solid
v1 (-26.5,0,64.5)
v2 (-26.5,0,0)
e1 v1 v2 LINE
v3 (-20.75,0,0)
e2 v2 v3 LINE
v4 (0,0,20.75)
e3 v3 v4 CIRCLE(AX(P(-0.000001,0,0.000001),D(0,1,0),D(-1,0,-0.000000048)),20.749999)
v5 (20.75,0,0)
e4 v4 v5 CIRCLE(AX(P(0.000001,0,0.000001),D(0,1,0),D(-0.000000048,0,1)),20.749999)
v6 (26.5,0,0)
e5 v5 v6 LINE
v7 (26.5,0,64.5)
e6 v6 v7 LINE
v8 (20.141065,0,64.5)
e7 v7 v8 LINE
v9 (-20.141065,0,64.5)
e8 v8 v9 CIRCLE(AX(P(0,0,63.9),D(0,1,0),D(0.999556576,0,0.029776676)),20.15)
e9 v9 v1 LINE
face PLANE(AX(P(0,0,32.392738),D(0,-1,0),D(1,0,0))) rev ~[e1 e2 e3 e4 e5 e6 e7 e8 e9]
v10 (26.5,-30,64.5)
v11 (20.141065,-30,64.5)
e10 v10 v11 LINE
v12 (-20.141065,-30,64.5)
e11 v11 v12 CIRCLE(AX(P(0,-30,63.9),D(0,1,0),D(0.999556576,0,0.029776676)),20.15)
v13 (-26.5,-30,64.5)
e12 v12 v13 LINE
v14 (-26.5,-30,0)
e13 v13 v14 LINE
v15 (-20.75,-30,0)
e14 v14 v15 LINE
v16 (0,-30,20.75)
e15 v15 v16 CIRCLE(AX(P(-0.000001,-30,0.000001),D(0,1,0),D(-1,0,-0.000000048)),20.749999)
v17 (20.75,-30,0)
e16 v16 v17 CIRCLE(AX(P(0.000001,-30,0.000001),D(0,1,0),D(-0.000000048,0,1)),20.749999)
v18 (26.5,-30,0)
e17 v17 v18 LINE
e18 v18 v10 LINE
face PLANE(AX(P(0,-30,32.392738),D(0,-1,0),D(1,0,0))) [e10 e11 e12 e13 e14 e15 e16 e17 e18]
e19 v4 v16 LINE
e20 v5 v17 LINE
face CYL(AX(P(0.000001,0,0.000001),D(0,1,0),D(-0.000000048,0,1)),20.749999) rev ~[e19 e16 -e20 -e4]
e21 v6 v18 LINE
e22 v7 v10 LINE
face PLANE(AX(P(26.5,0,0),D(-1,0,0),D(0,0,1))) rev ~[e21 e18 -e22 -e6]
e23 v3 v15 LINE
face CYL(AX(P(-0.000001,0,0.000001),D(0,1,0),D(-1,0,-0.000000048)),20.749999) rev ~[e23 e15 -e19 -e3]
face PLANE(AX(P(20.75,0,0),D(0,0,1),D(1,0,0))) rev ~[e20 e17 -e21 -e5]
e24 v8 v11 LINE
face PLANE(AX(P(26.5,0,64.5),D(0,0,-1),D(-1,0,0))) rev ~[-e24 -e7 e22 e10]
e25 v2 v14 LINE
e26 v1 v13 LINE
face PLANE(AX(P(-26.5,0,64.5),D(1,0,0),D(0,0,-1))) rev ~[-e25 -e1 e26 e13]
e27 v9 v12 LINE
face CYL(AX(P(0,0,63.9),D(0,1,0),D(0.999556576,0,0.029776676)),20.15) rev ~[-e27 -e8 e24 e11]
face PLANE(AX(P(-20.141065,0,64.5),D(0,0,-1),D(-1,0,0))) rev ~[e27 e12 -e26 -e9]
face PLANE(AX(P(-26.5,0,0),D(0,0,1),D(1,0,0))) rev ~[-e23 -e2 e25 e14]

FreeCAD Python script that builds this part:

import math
import FreeCAD as App
import Part
import Sketcher
from FreeCAD import Vector
Q = App.Units.Quantity

doc = App.newDocument("Part")
body = doc.addObject("PartDesign::Body", "Body")

# Sketch on XZ plane
sketch1 = body.newObject("Sketcher::SketchObject", "Sketch")
sketch1.AttachmentSupport = (doc.getObject("XZ_Plane"), [""])
sketch1.MapMode = "FlatFace"
sketch1.addGeometry(Part.LineSegment(Vector(26, 64, 0), Vector(20, 64, 0)), False)
sketch1.addGeometry(Part.ArcOfCircle(Part.Circle(Vector(0, 64, 0), Vector(0, 0, 1), 20), math.radians(178), math.radians(362)), False)
sketch1.addGeometry(Part.LineSegment(Vector(-20, 64, 0), Vector(-26, 64, 0)), False)
sketch1.addGeometry(Part.LineSegment(Vector(-26, 64, 0), Vector(-26, 0, 0)), False)
sketch1.addGeometry(Part.LineSegment(Vector(-26, 0, 0), Vector(-21, 0, 0)), False)
sketch1.addGeometry(Part.ArcOfCircle(Part.Circle(Vector(0, 0, 0), Vector(0, 0, 1), 21), math.radians(90), math.radians(180)), False)
sketch1.addGeometry(Part.ArcOfCircle(Part.Circle(Vector(0, 0, 0), Vector(0, 0, 1), 21), math.radians(0), math.radians(90)), False)
sketch1.addGeometry(Part.LineSegment(Vector(21, 0, 0), Vector(26, 0, 0)), False)
sketch1.addGeometry(Part.LineSegment(Vector(26, 0, 0), Vector(26, 64, 0)), False)
sketch1.addConstraint(Sketcher.Constraint("Coincident", 0, 2, 1, 2))
sketch1.addConstraint(Sketcher.Constraint("Coincident", 1, 1, 2, 1))
sketch1.addConstraint(Sketcher.Constraint("Coincident", 2, 2, 3, 1))
sketch1.addConstraint(Sketcher.Constraint("Coincident", 3, 2, 4, 1))
sketch1.addConstraint(Sketcher.Constraint("Coincident", 4, 2, 5, 2))
sketch1.addConstraint(Sketcher.Constraint("Tangent", 5, 1, 6, 2))
sketch1.addConstraint(Sketcher.Constraint("Coincident", 6, 1, 7, 1))
sketch1.addConstraint(Sketcher.Constraint("Coincident", 7, 2, 8, 1))
sketch1.addConstraint(Sketcher.Constraint("Coincident", 8, 2, 0, 1))
sketch1.addConstraint(Sketcher.Constraint("Horizontal", 0))
sketch1.addConstraint(Sketcher.Constraint("Horizontal", 2))
sketch1.addConstraint(Sketcher.Constraint("Vertical", 3))
sketch1.addConstraint(Sketcher.Constraint("Horizontal", 4))
sketch1.addConstraint(Sketcher.Constraint("Horizontal", 7))
sketch1.addConstraint(Sketcher.Constraint("Vertical", 8))
sketch1.addConstraint(Sketcher.Constraint("Coincident", 5, 3, -1, 1))
sketch1.addConstraint(Sketcher.Constraint("Equal", 5, 6))
sketch1.addConstraint(Sketcher.Constraint("Symmetric", 3, 2, 7, 2, -1, 1))
sketch1.addConstraint(Sketcher.Constraint("Symmetric", 0, 2, 1, 1, -2))
sketch1.addConstraint(Sketcher.Constraint("PointOnObject", 3, 2, -1))
sketch1.addConstraint(Sketcher.Constraint("PointOnObject", 5, 1, -2))
sketch1.addConstraint(Sketcher.Constraint("Radius", 1, Q("20.15 mm")))
sketch1.addConstraint(Sketcher.Constraint("Radius", 5, Q("20.749999 mm")))
sketch1.addConstraint(Sketcher.Constraint("DistanceY", 3, 2, 3, 1, Q("64.5 mm")))
sketch1.addConstraint(Sketcher.Constraint("DistanceX", 2, 2, 8, 2, Q("53 mm")))
sketch1.addConstraint(Sketcher.Constraint("DistanceY", -1, 1, 1, 3, Q("63.9 mm")))
pad1 = body.newObject("PartDesign::Pad", "Pad")
pad1.Profile = sketch1
pad1.Length = 30

doc.recompute()
